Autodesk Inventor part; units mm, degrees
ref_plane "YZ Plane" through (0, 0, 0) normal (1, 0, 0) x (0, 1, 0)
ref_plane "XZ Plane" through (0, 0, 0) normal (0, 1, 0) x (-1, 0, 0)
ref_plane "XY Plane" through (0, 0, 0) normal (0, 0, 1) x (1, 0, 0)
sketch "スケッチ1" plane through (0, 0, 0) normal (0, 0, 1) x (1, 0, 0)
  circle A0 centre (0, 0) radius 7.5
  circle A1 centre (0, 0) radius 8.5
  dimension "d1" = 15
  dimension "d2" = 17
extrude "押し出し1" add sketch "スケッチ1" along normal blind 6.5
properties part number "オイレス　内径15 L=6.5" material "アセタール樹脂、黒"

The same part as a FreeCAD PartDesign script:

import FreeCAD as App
import Part
import Sketcher
Q = App.Units.Quantity

doc = App.newDocument("Part")
body = doc.addObject("PartDesign::Body", "Body")

sketch1 = doc.addObject("Sketcher::SketchObject", "Sketch")
body.addObject(sketch1)
sketch1.AttachmentSupport = (doc.XY_Plane, [""])
sketch1.MapMode = "FlatFace"
sketch1.addGeometry([
    Part.Circle(App.Vector(0, 0, 0), App.Vector(0, 0, 1), 8),
    Part.Circle(App.Vector(0, 0, 0), App.Vector(0, 0, 1), 8),
], False)
sketch1.addConstraint([
    Sketcher.Constraint("Coincident", 0, 3, -1, 1),
    Sketcher.Constraint("Coincident", 1, 3, -1, 1),
    Sketcher.Constraint("Diameter", 0, Q("17 mm")),
    Sketcher.Constraint("Diameter", 1, Q("15 mm")),
])
pad1 = doc.addObject("PartDesign::Pad", "Pad")
body.addObject(pad1)
pad1.Profile = sketch1
pad1.Length = 6.5

doc.recompute()
